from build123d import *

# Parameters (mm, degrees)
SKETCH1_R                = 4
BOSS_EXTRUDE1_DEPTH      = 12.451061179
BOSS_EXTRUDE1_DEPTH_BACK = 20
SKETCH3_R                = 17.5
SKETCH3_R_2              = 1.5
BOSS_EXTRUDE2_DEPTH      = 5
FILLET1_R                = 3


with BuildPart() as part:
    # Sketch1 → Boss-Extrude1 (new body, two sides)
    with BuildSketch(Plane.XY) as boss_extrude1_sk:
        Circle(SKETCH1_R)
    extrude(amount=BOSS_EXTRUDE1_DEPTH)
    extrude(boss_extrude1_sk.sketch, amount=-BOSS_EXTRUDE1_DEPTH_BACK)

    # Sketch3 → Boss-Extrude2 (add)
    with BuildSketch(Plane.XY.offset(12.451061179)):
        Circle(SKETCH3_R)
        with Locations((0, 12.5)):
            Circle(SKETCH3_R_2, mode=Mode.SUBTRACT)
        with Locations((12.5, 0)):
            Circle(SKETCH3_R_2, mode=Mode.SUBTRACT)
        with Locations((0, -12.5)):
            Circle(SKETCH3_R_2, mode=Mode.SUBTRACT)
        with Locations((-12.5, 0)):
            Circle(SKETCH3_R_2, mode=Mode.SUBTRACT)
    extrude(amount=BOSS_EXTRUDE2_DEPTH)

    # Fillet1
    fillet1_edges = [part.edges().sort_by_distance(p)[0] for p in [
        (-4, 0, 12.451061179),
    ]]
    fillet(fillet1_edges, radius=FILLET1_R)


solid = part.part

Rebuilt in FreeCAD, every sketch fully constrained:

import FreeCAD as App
import Part
import Sketcher

V = App.Vector
Q = App.Units.Quantity


def edges_at(feature, points):
    """Names of the edges that pass closest to the given points."""
    edges = feature.Shape.Edges
    near = lambda p: min(range(len(edges)), key=lambda i: edges[i].distToShape(Part.Vertex(*p))[0])
    return sorted({f"Edge{near(p) + 1}" for p in points})

doc = App.newDocument("Part")
body = doc.addObject("PartDesign::Body", "Body")

# Sketch on XY plane
sketch1 = body.newObject("Sketcher::SketchObject", "Sketch")
sketch1.AttachmentSupport = (doc.getObject("XY_Plane"), [""])
sketch1.MapMode = "FlatFace"
sketch1.addGeometry(Part.Circle(V(0, 0, 0), V(0, 0, 1), 4), False)
sketch1.addConstraint([
    Sketcher.Constraint("Coincident", 0, 3, -1, 1),
    Sketcher.Constraint("Diameter", 0, Q("8 mm")),
])
pad1 = body.newObject("PartDesign::Pad", "Pad")
pad1.Profile = sketch1
pad1.Type = "TwoLengths"
pad1.Length = 12.451061
pad1.Length2 = 20

# Sketch on XY plane
sketch2 = body.newObject("Sketcher::SketchObject", "Sketch001")
sketch2.AttachmentSupport = (doc.getObject("XY_Plane"), [""])
sketch2.MapMode = "FlatFace"
sketch2.AttachmentOffset = App.Placement(V(0, 0, 12.451061), App.Rotation())
sketch2.addGeometry([
    Part.Circle(V(0, 0, 0), V(0, 0, 1), 17.5),  # 0
    Part.Circle(V(0, -12.5, 0), V(0, 0, 1), 1.5),  # 1
    Part.Circle(V(-12.5, 0, 0), V(0, 0, 1), 1.5),  # 2
    Part.Circle(V(12.5, 0, 0), V(0, 0, 1), 1.5),  # 3
    Part.Circle(V(0, 12.5, 0), V(0, 0, 1), 1.5),  # 4
], False)
sketch2.addConstraint([
    Sketcher.Constraint("Coincident", 0, 3, -1, 1),
    Sketcher.Constraint("Equal", 1, 2),
    Sketcher.Constraint("Equal", 2, 3),
    Sketcher.Constraint("Equal", 3, 4),
    Sketcher.Constraint("Symmetric", 2, 3, 3, 3, -1, 1),
    Sketcher.Constraint("Symmetric", 1, 3, 4, 3, -1, 1),
    Sketcher.Constraint("PointOnObject", 1, 3, -2),
    Sketcher.Constraint("PointOnObject", 2, 3, -1),
    Sketcher.Constraint("Diameter", 0, Q("35 mm")),
    Sketcher.Constraint("Diameter", 1, Q("3 mm")),
    Sketcher.Constraint("DistanceX", 2, 3, 3, 3, Q("25 mm")),
    Sketcher.Constraint("DistanceY", 1, 3, 4, 3, Q("25 mm")),
])
pad2 = body.newObject("PartDesign::Pad", "Pad001")
pad2.Profile = sketch2
pad2.Length = 5
doc.recompute()

fillet = body.newObject("PartDesign::Fillet", "Fillet")
fillet.Base = (pad2, edges_at(pad2, [(-4, 0, 12.451)]))
fillet.Radius = 3

doc.recompute()
